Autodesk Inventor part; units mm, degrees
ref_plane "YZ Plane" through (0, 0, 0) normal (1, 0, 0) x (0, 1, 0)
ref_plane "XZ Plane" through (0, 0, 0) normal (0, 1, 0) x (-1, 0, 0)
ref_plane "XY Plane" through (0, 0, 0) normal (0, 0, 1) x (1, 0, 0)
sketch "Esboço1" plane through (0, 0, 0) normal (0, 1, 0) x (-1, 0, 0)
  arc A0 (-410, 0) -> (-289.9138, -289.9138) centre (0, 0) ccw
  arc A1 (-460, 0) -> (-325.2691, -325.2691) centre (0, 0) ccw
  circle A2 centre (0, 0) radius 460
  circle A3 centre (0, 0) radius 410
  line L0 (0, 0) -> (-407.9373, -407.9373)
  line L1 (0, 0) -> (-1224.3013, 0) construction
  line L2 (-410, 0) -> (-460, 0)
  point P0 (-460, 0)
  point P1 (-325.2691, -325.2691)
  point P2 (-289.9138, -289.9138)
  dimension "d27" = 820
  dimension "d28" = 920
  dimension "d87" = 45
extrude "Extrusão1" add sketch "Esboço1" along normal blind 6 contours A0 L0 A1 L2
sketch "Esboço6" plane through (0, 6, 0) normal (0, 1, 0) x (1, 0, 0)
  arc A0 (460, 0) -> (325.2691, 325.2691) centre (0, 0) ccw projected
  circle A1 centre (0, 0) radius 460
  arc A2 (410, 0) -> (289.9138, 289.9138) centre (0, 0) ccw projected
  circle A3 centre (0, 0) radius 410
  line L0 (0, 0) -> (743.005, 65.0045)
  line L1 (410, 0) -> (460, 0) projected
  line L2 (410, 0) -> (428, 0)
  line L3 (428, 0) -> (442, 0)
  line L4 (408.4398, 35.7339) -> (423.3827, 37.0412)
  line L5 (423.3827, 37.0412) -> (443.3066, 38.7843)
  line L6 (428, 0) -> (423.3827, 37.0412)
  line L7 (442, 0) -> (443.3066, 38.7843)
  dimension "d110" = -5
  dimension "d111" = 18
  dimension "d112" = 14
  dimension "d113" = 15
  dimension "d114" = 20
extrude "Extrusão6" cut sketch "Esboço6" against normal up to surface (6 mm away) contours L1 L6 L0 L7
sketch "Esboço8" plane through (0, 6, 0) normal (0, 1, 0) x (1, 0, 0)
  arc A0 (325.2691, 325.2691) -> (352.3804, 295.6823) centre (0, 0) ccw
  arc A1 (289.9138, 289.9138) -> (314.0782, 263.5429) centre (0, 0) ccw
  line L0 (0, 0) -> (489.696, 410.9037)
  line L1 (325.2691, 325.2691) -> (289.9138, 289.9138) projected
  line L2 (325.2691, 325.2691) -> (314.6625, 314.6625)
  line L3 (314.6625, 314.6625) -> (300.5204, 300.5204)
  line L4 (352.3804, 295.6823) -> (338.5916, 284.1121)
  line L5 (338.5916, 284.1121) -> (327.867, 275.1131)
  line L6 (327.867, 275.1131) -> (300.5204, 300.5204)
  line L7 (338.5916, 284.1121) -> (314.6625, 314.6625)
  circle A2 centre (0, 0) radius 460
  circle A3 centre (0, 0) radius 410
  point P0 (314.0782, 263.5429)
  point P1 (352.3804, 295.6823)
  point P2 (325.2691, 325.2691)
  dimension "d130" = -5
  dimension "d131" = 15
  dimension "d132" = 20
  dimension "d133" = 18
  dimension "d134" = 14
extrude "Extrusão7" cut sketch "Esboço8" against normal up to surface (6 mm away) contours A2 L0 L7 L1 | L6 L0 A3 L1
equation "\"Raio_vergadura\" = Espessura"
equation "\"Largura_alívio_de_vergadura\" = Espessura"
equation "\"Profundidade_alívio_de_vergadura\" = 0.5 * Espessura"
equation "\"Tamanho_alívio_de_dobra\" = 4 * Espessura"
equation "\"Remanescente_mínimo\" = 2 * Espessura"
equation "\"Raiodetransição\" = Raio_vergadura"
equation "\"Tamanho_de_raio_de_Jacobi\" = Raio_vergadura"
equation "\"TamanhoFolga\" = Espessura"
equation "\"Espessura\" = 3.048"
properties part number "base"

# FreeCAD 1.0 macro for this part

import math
import FreeCAD as App
import Part
import Sketcher
Q = App.Units.Quantity


def add_polygon(sketch, points):
    """Adds a closed chain of lines whose ends are joined by coincident constraints."""
    first, n = sketch.GeometryCount, len(points)
    for a, b in zip(points, points[1:] + points[:1]):
        sketch.addGeometry(Part.LineSegment(App.Vector(*a, 0), App.Vector(*b, 0)), False)
    for i in range(n):
        sketch.addConstraint(Sketcher.Constraint("Coincident", first + i, 2, first + (i + 1) % n, 1))

doc = App.newDocument("Part")
params = doc.addObject("Spreadsheet::Sheet", "Params")
for row, (alias, value) in enumerate([
    ("sketch1_radius", "410 mm"),
    ("sketch1_radius2", "460 mm"),
    ("pad1_length", "6 mm"),
    ("sketch2_width", "14 mm"),
    ("sketch2_length", "20 mm"),
    ("pocket1_length", "6 mm"),
    ("sketch3_length", "15 mm"),
    ("sketch3_length2", "18 mm"),
    ("sketch3_radius", "460 mm"),
    ("sketch3_radius2", "410 mm"),
    ("pocket2_length", "6 mm"),
], start=1):
    params.set(f"A{row}", alias)
    params.set(f"B{row}", "=" + value)
    params.setAlias(f"B{row}", alias)

body = doc.addObject("PartDesign::Body", "Body")

sketch1 = doc.addObject("Sketcher::SketchObject", "Sketch")
body.addObject(sketch1)
sketch1.AttachmentSupport = (doc.XZ_Plane, [""])
sketch1.MapMode = "FlatFace"
sketch1.addGeometry([
    Part.ArcOfCircle(Part.Circle(App.Vector(0, 0, 0), App.Vector(0, 0, 1), 410), math.radians(-45), math.radians(0)),
    Part.LineSegment(App.Vector(410, 0, 0), App.Vector(460, 0, 0)),
    Part.ArcOfCircle(Part.Circle(App.Vector(0, 0, 0), App.Vector(0, 0, 1), 460), math.radians(-45), math.radians(0)),
    Part.LineSegment(App.Vector(325.2691, -325.2691, 0), App.Vector(289.9138, -289.9138, 0)),
], False)
sketch1.addConstraint([
    Sketcher.Constraint("Coincident", 0, 2, 1, 1),
    Sketcher.Constraint("Coincident", 1, 2, 2, 2),
    Sketcher.Constraint("Coincident", 2, 1, 3, 1),
    Sketcher.Constraint("Coincident", 3, 2, 0, 1),
    Sketcher.Constraint("Horizontal", 1),
    Sketcher.Constraint("Coincident", 0, 3, -1, 1),
    Sketcher.Constraint("Coincident", 2, 3, -1, 1),
    Sketcher.Constraint("PointOnObject", 1, 2, -1),
    Sketcher.Constraint("Radius", 0, Q("410 mm")),
    Sketcher.Constraint("Radius", 2, Q("460 mm")),
    Sketcher.Constraint("Angle", 3, Q("135 deg")),
    Sketcher.Constraint("DistanceX", -1, 1, 3, 2, Q("289.9138 mm")),
])
sketch1.setExpression("Constraints[8]", "Params.sketch1_radius")
sketch1.setExpression("Constraints[9]", "Params.sketch1_radius2")
pad1 = doc.addObject("PartDesign::Pad", "Pad")
body.addObject(pad1)
pad1.Profile = sketch1
pad1.setExpression("Length", "Params.pad1_length")
pad1.Reversed = True

sketch2 = doc.addObject("Sketcher::SketchObject", "Sketch001")
body.addObject(sketch2)
sketch2.AttachmentSupport = (doc.XZ_Plane, [""])
sketch2.MapMode = "FlatFace"
sketch2.AttachmentOffset = App.Placement(App.Vector(0, 0, -6), App.Rotation())
add_polygon(sketch2, [(428, 0), (442, 0), (443.306601, -38.784293), (423.3827, -37.0412)])
sketch2.addConstraint([
    Sketcher.Constraint("Horizontal", 0),
    Sketcher.Constraint("PointOnObject", 0, 2, -1),
    Sketcher.Constraint("DistanceX", 0, 1, 0, 2, Q("14 mm")),
    Sketcher.Constraint("Distance", 2, Q("20 mm")),
    Sketcher.Constraint("Angle", 2, Q("175 deg")),
    Sketcher.Constraint("DistanceX", -1, 1, 0, 2, Q("442 mm")),
    Sketcher.Constraint("Angle", 1, Q("-88.0705 deg")),
    Sketcher.Constraint("Distance", 1, Q("38.8063 mm")),
])
sketch2.setExpression("Constraints[6]", "Params.sketch2_width")
sketch2.setExpression("Constraints[7]", "Params.sketch2_length")
pocket1 = doc.addObject("PartDesign::Pocket", "Pocket")
body.addObject(pocket1)
pocket1.Profile = sketch2
pocket1.setExpression("Length", "Params.pocket1_length")
pocket1.Reversed = True

sketch3 = doc.addObject("Sketcher::SketchObject", "Sketch002")
body.addObject(sketch3)
sketch3.AttachmentSupport = (doc.XZ_Plane, [""])
sketch3.MapMode = "FlatFace"
sketch3.AttachmentOffset = App.Placement(App.Vector(0, 0, -6), App.Rotation())
sketch3.addGeometry([
    Part.ArcOfCircle(Part.Circle(App.Vector(0, 0, 0), App.Vector(0, 0, 1), 460), math.radians(-45), math.radians(-40.000003)),
    Part.LineSegment(App.Vector(325.2691, -325.2691, 0), App.Vector(314.6625, -314.6625, 0)),
    Part.LineSegment(App.Vector(314.6625, -314.6625, 0), App.Vector(338.5916, -284.1121, 0)),
    Part.LineSegment(App.Vector(338.591618, -284.112079, 0), App.Vector(352.38043, -295.682265, 0)),
    Part.LineSegment(App.Vector(327.867, -275.1131, 0), App.Vector(300.5204, -300.5204, 0)),
    Part.LineSegment(App.Vector(300.5204, -300.5204, 0), App.Vector(289.9138, -289.9138, 0)),
    Part.ArcOfCircle(Part.Circle(App.Vector(0, 0, 0), App.Vector(0, 0, 1), 410), math.radians(-45), math.radians(-40)),
    Part.LineSegment(App.Vector(314.07821, -263.542889, 0), App.Vector(327.867021, -275.113075, 0)),
], False)
sketch3.addConstraint([
    Sketcher.Constraint("Coincident", 0, 1, 1, 1),
    Sketcher.Constraint("Coincident", 1, 2, 2, 1),
    Sketcher.Constraint("Coincident", 2, 2, 3, 1),
    Sketcher.Constraint("Coincident", 3, 2, 0, 2),
    Sketcher.Constraint("Coincident", 4, 2, 5, 1),
    Sketcher.Constraint("Coincident", 5, 2, 6, 1),
    Sketcher.Constraint("Coincident", 6, 2, 7, 1),
    Sketcher.Constraint("Coincident", 7, 2, 4, 1),
    Sketcher.Constraint("Coincident", 0, 3, -1, 1),
    Sketcher.Constraint("Coincident", 6, 3, -1, 1),
    Sketcher.Constraint("Parallel", 1, 5),
    Sketcher.Constraint("Parallel", 3, 7),
    Sketcher.Constraint("Equal", 1, 5),
    Sketcher.Constraint("Equal", 3, 7),
    Sketcher.Constraint("Distance", 1, Q("15 mm")),
    Sketcher.Constraint("Distance", 3, Q("18 mm")),
    Sketcher.Constraint("Radius", 0, Q("460 mm")),
    Sketcher.Constraint("Radius", 6, Q("410 mm")),
    Sketcher.Constraint("Angle", 1, Q("135 deg")),
    Sketcher.Constraint("Angle", 3, Q("-40 deg")),
    Sketcher.Constraint("Angle", 2, Q("51.9296 deg")),
    Sketcher.Constraint("DistanceX", 4, 2, 3, 2, Q("51.86 mm")),
    Sketcher.Constraint("DistanceY", 2, 2, -1, 1, Q("284.112 mm")),
    Sketcher.Constraint("DistanceX", -1, 1, 7, 2, Q("327.867 mm")),
])
sketch3.setExpression("Constraints[14]", "Params.sketch3_length")
sketch3.setExpression("Constraints[15]", "Params.sketch3_length2")
sketch3.setExpression("Constraints[16]", "Params.sketch3_radius")
sketch3.setExpression("Constraints[17]", "Params.sketch3_radius2")
pocket2 = doc.addObject("PartDesign::Pocket", "Pocket001")
body.addObject(pocket2)
pocket2.Profile = sketch3
pocket2.setExpression("Length", "Params.pocket2_length")
pocket2.Reversed = True

doc.recompute()
